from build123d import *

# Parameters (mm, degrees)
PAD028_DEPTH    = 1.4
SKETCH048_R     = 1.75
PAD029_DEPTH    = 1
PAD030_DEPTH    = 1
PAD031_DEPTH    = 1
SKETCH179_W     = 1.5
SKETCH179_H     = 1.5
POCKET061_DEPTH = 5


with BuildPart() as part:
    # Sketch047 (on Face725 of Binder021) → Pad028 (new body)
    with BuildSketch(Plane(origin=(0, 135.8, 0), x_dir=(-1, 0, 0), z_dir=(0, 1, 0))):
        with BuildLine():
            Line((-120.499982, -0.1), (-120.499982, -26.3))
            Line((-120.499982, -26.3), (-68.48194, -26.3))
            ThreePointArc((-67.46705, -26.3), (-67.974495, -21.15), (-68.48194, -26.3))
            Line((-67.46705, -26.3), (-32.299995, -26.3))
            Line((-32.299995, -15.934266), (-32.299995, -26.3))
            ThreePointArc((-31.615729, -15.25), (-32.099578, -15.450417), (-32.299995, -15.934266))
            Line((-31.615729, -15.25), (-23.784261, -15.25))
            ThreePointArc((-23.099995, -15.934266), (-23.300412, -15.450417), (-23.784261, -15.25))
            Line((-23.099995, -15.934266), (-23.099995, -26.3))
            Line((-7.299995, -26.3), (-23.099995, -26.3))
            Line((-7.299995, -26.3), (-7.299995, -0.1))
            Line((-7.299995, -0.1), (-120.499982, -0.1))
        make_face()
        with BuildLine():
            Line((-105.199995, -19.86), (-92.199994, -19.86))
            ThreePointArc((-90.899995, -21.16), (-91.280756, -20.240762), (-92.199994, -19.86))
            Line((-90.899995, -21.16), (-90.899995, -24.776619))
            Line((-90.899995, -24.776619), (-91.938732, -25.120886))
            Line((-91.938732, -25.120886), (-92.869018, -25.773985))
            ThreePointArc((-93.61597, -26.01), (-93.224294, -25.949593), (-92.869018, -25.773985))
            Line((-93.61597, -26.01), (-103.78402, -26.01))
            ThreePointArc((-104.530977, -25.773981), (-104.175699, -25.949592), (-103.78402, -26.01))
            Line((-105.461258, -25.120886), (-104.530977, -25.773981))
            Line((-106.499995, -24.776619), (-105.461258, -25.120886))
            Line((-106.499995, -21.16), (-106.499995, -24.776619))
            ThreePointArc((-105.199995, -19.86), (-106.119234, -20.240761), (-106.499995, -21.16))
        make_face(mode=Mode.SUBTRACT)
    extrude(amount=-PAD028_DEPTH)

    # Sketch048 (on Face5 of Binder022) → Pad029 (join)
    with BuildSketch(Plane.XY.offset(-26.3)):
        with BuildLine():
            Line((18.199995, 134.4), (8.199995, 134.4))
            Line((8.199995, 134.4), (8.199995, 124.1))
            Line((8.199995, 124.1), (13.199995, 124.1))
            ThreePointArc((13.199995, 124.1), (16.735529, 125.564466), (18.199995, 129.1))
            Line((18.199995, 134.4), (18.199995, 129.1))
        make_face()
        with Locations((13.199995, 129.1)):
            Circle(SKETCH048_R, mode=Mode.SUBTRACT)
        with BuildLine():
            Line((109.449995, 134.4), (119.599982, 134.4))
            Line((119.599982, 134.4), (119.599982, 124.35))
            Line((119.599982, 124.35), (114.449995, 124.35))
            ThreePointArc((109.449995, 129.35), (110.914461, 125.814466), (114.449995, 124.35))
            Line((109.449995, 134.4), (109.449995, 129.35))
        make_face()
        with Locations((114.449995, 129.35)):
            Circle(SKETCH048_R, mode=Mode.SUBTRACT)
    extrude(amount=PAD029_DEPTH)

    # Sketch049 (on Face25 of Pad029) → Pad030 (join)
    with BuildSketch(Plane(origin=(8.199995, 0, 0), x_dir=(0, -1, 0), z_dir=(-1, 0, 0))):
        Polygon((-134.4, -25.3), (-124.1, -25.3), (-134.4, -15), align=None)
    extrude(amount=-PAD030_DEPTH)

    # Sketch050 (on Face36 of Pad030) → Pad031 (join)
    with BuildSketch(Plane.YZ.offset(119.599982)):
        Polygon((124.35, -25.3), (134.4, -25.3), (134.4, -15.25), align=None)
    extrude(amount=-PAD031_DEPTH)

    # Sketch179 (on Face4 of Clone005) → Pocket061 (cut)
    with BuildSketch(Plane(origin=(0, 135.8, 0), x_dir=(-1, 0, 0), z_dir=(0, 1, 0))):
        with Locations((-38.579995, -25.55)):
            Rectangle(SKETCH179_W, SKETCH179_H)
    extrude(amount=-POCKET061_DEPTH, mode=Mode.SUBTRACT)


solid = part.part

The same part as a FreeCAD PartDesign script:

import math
import FreeCAD as App
import Part
import Sketcher


def add_polygon(sketch, points):
    """Adds a closed chain of lines whose ends are joined by coincident constraints."""
    first, n = sketch.GeometryCount, len(points)
    for a, b in zip(points, points[1:] + points[:1]):
        sketch.addGeometry(Part.LineSegment(App.Vector(*a, 0), App.Vector(*b, 0)), False)
    for i in range(n):
        sketch.addConstraint(Sketcher.Constraint("Coincident", first + i, 2, first + (i + 1) % n, 1))

doc = App.newDocument("Part")
params = doc.addObject("Spreadsheet::Sheet", "Params")
for row, (alias, value) in enumerate([
    ("sketch1_radius", "2.6 mm"),
    ("sketch1_radius2", "1.299999 mm"),
    ("sketch1_width", "13.000001 mm"),
    ("sketch1_width2", "15.8 mm"),
    ("sketch1_height", "26.2 mm"),
    ("pad1_length", "1.4 mm"),
    ("sketch2_radius", "5 mm"),
    ("sketch2_diameter", "3.5 mm"),
    ("sketch2_width", "10 mm"),
    ("sketch2_height", "10.3 mm"),
    ("sketch2_height2", "5.05 mm"),
    ("pad2_length", "1 mm"),
    ("sketch3_width", "10.3 mm"),
    ("pad3_length", "1 mm"),
    ("sketch4_width", "10.05 mm"),
    ("pad4_length", "1 mm"),
    ("sketch5_width", "1.5 mm"),
    ("pocket1_length", "5 mm"),
], start=1):
    params.set(f"A{row}", alias)
    params.set(f"B{row}", "=" + value)
    params.setAlias(f"B{row}", alias)

body = doc.addObject("PartDesign::Body", "Body")

sketch1 = doc.addObject("Sketcher::SketchObject", "Sketch")
body.addObject(sketch1)
sketch1.AttachmentSupport = (doc.XZ_Plane, [""])
sketch1.MapMode = "FlatFace"
sketch1.AttachmentOffset = App.Placement(App.Vector(0, 0, -135.8), App.Rotation())
sketch1.addGeometry([
    Part.LineSegment(App.Vector(120.5, -0.1, 0), App.Vector(120.5, -26.3, 0)),
    Part.LineSegment(App.Vector(120.5, -26.3, 0), App.Vector(68.5, -26.3, 0)),
    Part.ArcOfCircle(Part.Circle(App.Vector(68, -23.8, 0), App.Vector(0, 0, 1), 2.6), math.radians(-79), math.radians(259)),
    Part.LineSegment(App.Vector(67.5, -26.3, 0), App.Vector(32.3, -26.3, 0)),
    Part.LineSegment(App.Vector(32.3, -26.3, 0), App.Vector(32.3, -15.9, 0)),
    Part.ArcOfCircle(Part.Circle(App.Vector(31.6, -15.9, 0), App.Vector(0, 0, 1), 0.7), math.radians(0), math.radians(90)),
    Part.LineSegment(App.Vector(31.6, -15.2, 0), App.Vector(23.8, -15.2, 0)),
    Part.ArcOfCircle(Part.Circle(App.Vector(23.8, -15.9, 0), App.Vector(0, 0, 1), 0.7), math.radians(90), math.radians(180)),
    Part.LineSegment(App.Vector(23.1, -15.9, 0), App.Vector(23.1, -26.3, 0)),
    Part.LineSegment(App.Vector(23.1, -26.3, 0), App.Vector(7.3, -26.3, 0)),
    Part.LineSegment(App.Vector(7.3, -26.3, 0), App.Vector(7.3, -0.1, 0)),
    Part.LineSegment(App.Vector(7.3, -0.1, 0), App.Vector(120.5, -0.1, 0)),
    Part.ArcOfCircle(Part.Circle(App.Vector(105.2, -21.2, 0), App.Vector(0, 0, 1), 1.3), math.radians(0), math.radians(90)),
    Part.LineSegment(App.Vector(105.2, -19.9, 0), App.Vector(92.2, -19.9, 0)),
    Part.ArcOfCircle(Part.Circle(App.Vector(92.2, -21.2, 0), App.Vector(0, 0, 1), 1.3), math.radians(90), math.radians(180)),
    Part.LineSegment(App.Vector(90.9, -21.2, 0), App.Vector(90.9, -24.8, 0)),
    Part.LineSegment(App.Vector(90.9, -24.8, 0), App.Vector(91.9, -25.1, 0)),
    Part.LineSegment(App.Vector(91.9, -25.1, 0), App.Vector(92.9, -25.8, 0)),
    Part.ArcOfCircle(Part.Circle(App.Vector(93.6, -24.7, 0), App.Vector(0, 0, 1), 1.3), math.radians(-125), math.radians(-90)),
    Part.LineSegment(App.Vector(93.6, -26, 0), App.Vector(103.8, -26, 0)),
    Part.ArcOfCircle(Part.Circle(App.Vector(103.8, -24.7, 0), App.Vector(0, 0, 1), 1.3), math.radians(-90), math.radians(-55)),
    Part.LineSegment(App.Vector(104.5, -25.8, 0), App.Vector(105.5, -25.1, 0)),
    Part.LineSegment(App.Vector(105.5, -25.1, 0), App.Vector(106.5, -24.8, 0)),
    Part.LineSegment(App.Vector(106.5, -24.8, 0), App.Vector(106.5, -21.2, 0)),
], False)
sketch1.addConstraint([
    Sketcher.Constraint("Coincident", 0, 2, 1, 1),
    Sketcher.Constraint("Coincident", 1, 2, 2, 1),
    Sketcher.Constraint("Coincident", 2, 2, 3, 1),
    Sketcher.Constraint("Coincident", 3, 2, 4, 1),
    Sketcher.Constraint("Tangent", 4, 2, 5, 1),
    Sketcher.Constraint("Tangent", 5, 2, 6, 1),
    Sketcher.Constraint("Tangent", 6, 2, 7, 1),
    Sketcher.Constraint("Tangent", 7, 2, 8, 1),
    Sketcher.Constraint("Coincident", 8, 2, 9, 1),
    Sketcher.Constraint("Coincident", 9, 2, 10, 1),
    Sketcher.Constraint("Coincident", 10, 2, 11, 1),
    Sketcher.Constraint("Coincident", 11, 2, 0, 1),
    Sketcher.Constraint("Tangent", 12, 2, 13, 1),
    Sketcher.Constraint("Tangent", 13, 2, 14, 1),
    Sketcher.Constraint("Tangent", 14, 2, 15, 1),
    Sketcher.Constraint("Coincident", 15, 2, 16, 1),
    Sketcher.Constraint("Coincident", 16, 2, 17, 1),
    Sketcher.Constraint("Coincident", 17, 2, 18, 1),
    Sketcher.Constraint("Tangent", 18, 2, 19, 1),
    Sketcher.Constraint("Tangent", 19, 2, 20, 1),
    Sketcher.Constraint("Tangent", 20, 2, 21, 1),
    Sketcher.Constraint("Coincident", 21, 2, 22, 1),
    Sketcher.Constraint("Coincident", 22, 2, 23, 1),
    Sketcher.Constraint("Tangent", 23, 2, 12, 1),
    Sketcher.Constraint("Vertical", 0),
    Sketcher.Constraint("Horizontal", 1),
    Sketcher.Constraint("Horizontal", 3),
    Sketcher.Constraint("Vertical", 4),
    Sketcher.Constraint("Horizontal", 6),
    Sketcher.Constraint("Vertical", 8),
    Sketcher.Constraint("Horizontal", 9),
    Sketcher.Constraint("Vertical", 10),
    Sketcher.Constraint("Horizontal", 11),
    Sketcher.Constraint("Horizontal", 13),
    Sketcher.Constraint("Vertical", 15),
    Sketcher.Constraint("Horizontal", 19),
    Sketcher.Constraint("Vertical", 23),
    Sketcher.Constraint("Equal", 5, 7),
    Sketcher.Constraint("Equal", 12, 14),
    Sketcher.Constraint("Equal", 12, 18),
    Sketcher.Constraint("Horizontal", 1, 2, 2, 2),
    Sketcher.Constraint("Horizontal", 3, 2, 8, 2),
    Sketcher.Constraint("Horizontal", 16, 2, 21, 2),
    Sketcher.Constraint("Horizontal", 15, 2, 22, 2),
    Sketcher.Constraint("Equal", 16, 22),
    Sketcher.Constraint("Radius", 2, 2.6),
    Sketcher.Constraint("Radius", 12, 1.299999),
    Sketcher.Constraint("DistanceX", 13, 2, 13, 1, 13.000001),
    Sketcher.Constraint("DistanceX", 9, 2, 9, 1, 15.8),
    Sketcher.Constraint("DistanceY", 0, 2, 0, 1, 26.2),
    Sketcher.Constraint("DistanceX", 9, 2, 3, 2, 25.0),
    Sketcher.Constraint("DistanceY", 0, 2, -1, 1, 26.3),
    Sketcher.Constraint("DistanceY", 2, 3, 5, 2, 8.5),
    Sketcher.Constraint("DistanceY", 2, 3, -1, 1, 23.75),
    Sketcher.Constraint("DistanceY", 12, 3, -1, 1, 21.159999),
    Sketcher.Constraint("DistanceY", 18, 3, -1, 1, 24.710001),
    Sketcher.Constraint("Radius", 5, 0.684266),
    Sketcher.Constraint("Radius", 20, 1.299995),
    Sketcher.Constraint("Distance", 16, 1.094301),
    Sketcher.Constraint("DistanceX", 19, 1, 19, 2, 10.16805),
    Sketcher.Constraint("DistanceY", 15, 2, 15, 1, 3.616619),
    Sketcher.Constraint("DistanceX", 2, 3, 12, 3, 37.225501),
    Sketcher.Constraint("DistanceX", 3, 2, 2, 3, 35.6745),
    Sketcher.Constraint("DistanceY", 17, 2, 16, 2, 0.653099),
    Sketcher.Constraint("Distance", 17, 1.136649),
    Sketcher.Constraint("DistanceX", 1, 2, 1, 1, 52.018042),
    Sketcher.Constraint("DistanceX", -1, 1, 5, 3, 31.615729),
    Sketcher.Constraint("DistanceX", -1, 1, 18, 3, 93.615969),
])
sketch1.setExpression("Constraints[45]", "Params.sketch1_radius")
sketch1.setExpression("Constraints[46]", "Params.sketch1_radius2")
sketch1.setExpression("Constraints[47]", "Params.sketch1_width")
sketch1.setExpression("Constraints[48]", "Params.sketch1_width2")
sketch1.setExpression("Constraints[49]", "Params.sketch1_height")
pad1 = doc.addObject("PartDesign::Pad", "Pad")
body.addObject(pad1)
pad1.Profile = sketch1
pad1.setExpression("Length", "Params.pad1_length")

sketch2 = doc.addObject("Sketcher::SketchObject", "Sketch001")
body.addObject(sketch2)
sketch2.AttachmentSupport = (doc.XY_Plane, [""])
sketch2.MapMode = "FlatFace"
sketch2.AttachmentOffset = App.Placement(App.Vector(0, 0, -26.3), App.Rotation())
sketch2.addGeometry([
    Part.LineSegment(App.Vector(18.2, 134.4, 0), App.Vector(8.2, 134.4, 0)),
    Part.LineSegment(App.Vector(8.2, 134.4, 0), App.Vector(8.2, 124.1, 0)),
    Part.LineSegment(App.Vector(8.2, 124.1, 0), App.Vector(13.2, 124.1, 0)),
    Part.ArcOfCircle(Part.Circle(App.Vector(13.2, 129.1, 0), App.Vector(0, 0, 1), 5), math.radians(-90), math.radians(0)),
    Part.LineSegment(App.Vector(18.2, 129.1, 0), App.Vector(18.2, 134.4, 0)),
    Part.Circle(App.Vector(13.2, 129.1, 0), App.Vector(0, 0, 1), 1.8),
    Part.LineSegment(App.Vector(119.6, 134.4, 0), App.Vector(109.4, 134.4, 0)),
    Part.LineSegment(App.Vector(109.4, 134.4, 0), App.Vector(109.4, 129.3, 0)),
    Part.ArcOfCircle(Part.Circle(App.Vector(114.4, 129.3, 0), App.Vector(0, 0, 1), 5), math.radians(180), math.radians(270)),
    Part.LineSegment(App.Vector(114.4, 124.3, 0), App.Vector(119.6, 124.3, 0)),
    Part.LineSegment(App.Vector(119.6, 124.3, 0), App.Vector(119.6, 134.4, 0)),
    Part.Circle(App.Vector(114.4, 129.3, 0), App.Vector(0, 0, 1), 1.8),
], False)
sketch2.addConstraint([
    Sketcher.Constraint("Coincident", 0, 2, 1, 1),
    Sketcher.Constraint("Coincident", 1, 2, 2, 1),
    Sketcher.Constraint("Tangent", 2, 2, 3, 1),
    Sketcher.Constraint("Tangent", 3, 2, 4, 1),
    Sketcher.Constraint("Coincident", 4, 2, 0, 1),
    Sketcher.Constraint("Coincident", 6, 2, 7, 1),
    Sketcher.Constraint("Tangent", 7, 2, 8, 1),
    Sketcher.Constraint("Tangent", 8, 2, 9, 1),
    Sketcher.Constraint("Coincident", 9, 2, 10, 1),
    Sketcher.Constraint("Coincident", 10, 2, 6, 1),
    Sketcher.Constraint("Horizontal", 0),
    Sketcher.Constraint("Vertical", 1),
    Sketcher.Constraint("Horizontal", 2),
    Sketcher.Constraint("Vertical", 4),
    Sketcher.Constraint("Horizontal", 6),
    Sketcher.Constraint("Vertical", 7),
    Sketcher.Constraint("Horizontal", 9),
    Sketcher.Constraint("Vertical", 10),
    Sketcher.Constraint("Coincident", 5, 3, 3, 3),
    Sketcher.Constraint("Coincident", 11, 3, 8, 3),
    Sketcher.Constraint("Equal", 3, 8),
    Sketcher.Constraint("Equal", 5, 11),
    Sketcher.Constraint("Horizontal", 4, 2, 6, 2),
    Sketcher.Constraint("Radius", 3, 5.0),
    Sketcher.Constraint("Diameter", 5, 3.5),
    Sketcher.Constraint("DistanceX", 0, 2, 0, 1, 10.0),
    Sketcher.Constraint("DistanceY", 1, 2, 1, 1, 10.3),
    Sketcher.Constraint("DistanceY", 7, 2, 7, 1, 5.05),
    Sketcher.Constraint("DistanceY", -1, 1, 3, 3, 129.1),
    Sketcher.Constraint("DistanceX", 3, 3, 8, 3, 101.249999),
    Sketcher.Constraint("DistanceX", 6, 2, 6, 1, 10.149987),
    Sketcher.Constraint("DistanceX", -1, 1, 9, 2, 119.599982),
])
sketch2.setExpression("Constraints[23]", "Params.sketch2_radius")
sketch2.setExpression("Constraints[24]", "Params.sketch2_diameter")
sketch2.setExpression("Constraints[25]", "Params.sketch2_width")
sketch2.setExpression("Constraints[26]", "Params.sketch2_height")
sketch2.setExpression("Constraints[27]", "Params.sketch2_height2")
pad2 = doc.addObject("PartDesign::Pad", "Pad001")
body.addObject(pad2)
pad2.Profile = sketch2
pad2.setExpression("Length", "Params.pad2_length")

sketch3 = doc.addObject("Sketcher::SketchObject", "Sketch002")
body.addObject(sketch3)
sketch3.AttachmentSupport = (doc.YZ_Plane, [""])
sketch3.MapMode = "FlatFace"
sketch3.AttachmentOffset = App.Placement(App.Vector(0, 0, 8.199995), App.Rotation())
add_polygon(sketch3, [(134, -25), (124, -25), (134, -15)])
sketch3.addConstraint([
    Sketcher.Constraint("Horizontal", 0),
    Sketcher.Constraint("Vertical", 2),
    Sketcher.Constraint("Equal", 0, 2),
    Sketcher.Constraint("DistanceX", 0, 2, 0, 1, 10.3),
    Sketcher.Constraint("DistanceY", 1, 2, -1, 1, 15.0),
    Sketcher.Constraint("DistanceX", -1, 1, 0, 2, 124.1),
])
sketch3.setExpression("Constraints[6]", "Params.sketch3_width")
pad3 = doc.addObject("PartDesign::Pad", "Pad002")
body.addObject(pad3)
pad3.Profile = sketch3
pad3.setExpression("Length", "Params.pad3_length")

sketch4 = doc.addObject("Sketcher::SketchObject", "Sketch003")
body.addObject(sketch4)
sketch4.AttachmentSupport = (doc.YZ_Plane, [""])
sketch4.MapMode = "FlatFace"
sketch4.AttachmentOffset = App.Placement(App.Vector(0, 0, 119.599982), App.Rotation())
add_polygon(sketch4, [(124, -25), (134, -25), (134, -15)])
sketch4.addConstraint([
    Sketcher.Constraint("Horizontal", 0),
    Sketcher.Constraint("Vertical", 1),
    Sketcher.Constraint("Equal", 0, 1),
    Sketcher.Constraint("DistanceX", 0, 1, 0, 2, 10.05),
    Sketcher.Constraint("DistanceX", -1, 1, 0, 2, 134.4),
    Sketcher.Constraint("DistanceY", 0, 2, -1, 1, 25.3),
])
sketch4.setExpression("Constraints[6]", "Params.sketch4_width")
pad4 = doc.addObject("PartDesign::Pad", "Pad003")
body.addObject(pad4)
pad4.Profile = sketch4
pad4.setExpression("Length", "Params.pad4_length")
pad4.Reversed = True

sketch5 = doc.addObject("Sketcher::SketchObject", "Sketch004")
body.addObject(sketch5)
sketch5.AttachmentSupport = (doc.XZ_Plane, [""])
sketch5.MapMode = "FlatFace"
sketch5.AttachmentOffset = App.Placement(App.Vector(0, 0, -135.8), App.Rotation())
add_polygon(sketch5, [(39.3, -24.8), (39.3, -26.3), (37.8, -26.3), (37.8, -24.8)])
sketch5.addConstraint([
    Sketcher.Constraint("Vertical", 0),
    Sketcher.Constraint("Horizontal", 1),
    Sketcher.Constraint("Vertical", 2),
    Sketcher.Constraint("Horizontal", 3),
    Sketcher.Constraint("Equal", 3, 0),
    Sketcher.Constraint("DistanceX", 1, 2, 1, 1, 1.5),
    Sketcher.Constraint("DistanceY", 0, 2, -1, 1, 26.3),
    Sketcher.Constraint("DistanceX", -1, 1, 0, 2, 39.329995),
])
sketch5.setExpression("Constraints[9]", "Params.sketch5_width")
pocket1 = doc.addObject("PartDesign::Pocket", "Pocket")
body.addObject(pocket1)
pocket1.Profile = sketch5
pocket1.setExpression("Length", "Params.pocket1_length")
pocket1.Reversed = True

doc.recompute()
